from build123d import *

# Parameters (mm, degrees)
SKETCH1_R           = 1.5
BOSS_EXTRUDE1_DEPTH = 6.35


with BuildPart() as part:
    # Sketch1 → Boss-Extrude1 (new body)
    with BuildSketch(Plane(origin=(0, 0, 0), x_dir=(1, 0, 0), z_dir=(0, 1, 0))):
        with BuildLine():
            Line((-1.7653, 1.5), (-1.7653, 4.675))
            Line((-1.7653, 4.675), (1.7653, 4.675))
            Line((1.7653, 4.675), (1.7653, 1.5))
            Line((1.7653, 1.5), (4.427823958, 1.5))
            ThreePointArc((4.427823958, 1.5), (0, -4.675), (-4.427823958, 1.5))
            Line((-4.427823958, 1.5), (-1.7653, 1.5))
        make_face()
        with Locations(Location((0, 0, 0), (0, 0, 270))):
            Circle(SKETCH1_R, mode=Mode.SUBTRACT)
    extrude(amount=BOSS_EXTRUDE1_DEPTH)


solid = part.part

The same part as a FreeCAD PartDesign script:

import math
import FreeCAD as App
import Part
import Sketcher
Q = App.Units.Quantity

doc = App.newDocument("Part")
body = doc.addObject("PartDesign::Body", "Body")

# Sketch on XZ plane
sketch1 = doc.addObject("Sketcher::SketchObject", "Sketch")
body.addObject(sketch1)
sketch1.AttachmentSupport = (doc.XZ_Plane, [""])
sketch1.MapMode = "FlatFace"
sketch1.addGeometry([
    Part.LineSegment(App.Vector(-1.8, -4.7, 0), App.Vector(-1.8, -1.5, 0)),  # 0
    Part.LineSegment(App.Vector(-1.8, -1.5, 0), App.Vector(-4.4, -1.5, 0)),  # 1
    Part.ArcOfCircle(Part.Circle(App.Vector(0, 0, 0), App.Vector(0, 0, 1), 4.7), math.radians(-19), math.radians(199)),  # 2
    Part.LineSegment(App.Vector(4.4, -1.5, 0), App.Vector(1.8, -1.5, 0)),  # 3
    Part.LineSegment(App.Vector(1.8, -1.5, 0), App.Vector(1.8, -4.7, 0)),  # 4
    Part.LineSegment(App.Vector(1.8, -4.7, 0), App.Vector(-1.8, -4.7, 0)),  # 5
    Part.Circle(App.Vector(0, 0, 0), App.Vector(0, 0, 1), 1.5),  # 6
], False)
sketch1.addConstraint([
    Sketcher.Constraint("Coincident", 0, 2, 1, 1),
    Sketcher.Constraint("Coincident", 1, 2, 2, 2),
    Sketcher.Constraint("Coincident", 2, 1, 3, 1),
    Sketcher.Constraint("Coincident", 3, 2, 4, 1),
    Sketcher.Constraint("Coincident", 4, 2, 5, 1),
    Sketcher.Constraint("Coincident", 5, 2, 0, 1),
    Sketcher.Constraint("Vertical", 0),
    Sketcher.Constraint("Horizontal", 1),
    Sketcher.Constraint("Horizontal", 3),
    Sketcher.Constraint("Vertical", 4),
    Sketcher.Constraint("Horizontal", 5),
    Sketcher.Constraint("Coincident", 2, 3, -1, 1),
    Sketcher.Constraint("Coincident", 6, 3, -1, 1),
    Sketcher.Constraint("Symmetric", 0, 2, 3, 2, -2),
    Sketcher.Constraint("Diameter", 6, 3.0),
    Sketcher.Constraint("DistanceX", 5, 2, 5, 1, Q("0.139 in")),
    Sketcher.Constraint("DistanceY", 0, 1, 0, 2, Q("0.125 in")),
    Sketcher.Constraint("Radius", 2, 4.675),
    Sketcher.Constraint("DistanceY", 0, 2, -1, 1, 1.5),
])
pad1 = doc.addObject("PartDesign::Pad", "Pad")
body.addObject(pad1)
pad1.Profile = sketch1
pad1.Length = Q("0.25 in")
pad1.Reversed = True

doc.recompute()
